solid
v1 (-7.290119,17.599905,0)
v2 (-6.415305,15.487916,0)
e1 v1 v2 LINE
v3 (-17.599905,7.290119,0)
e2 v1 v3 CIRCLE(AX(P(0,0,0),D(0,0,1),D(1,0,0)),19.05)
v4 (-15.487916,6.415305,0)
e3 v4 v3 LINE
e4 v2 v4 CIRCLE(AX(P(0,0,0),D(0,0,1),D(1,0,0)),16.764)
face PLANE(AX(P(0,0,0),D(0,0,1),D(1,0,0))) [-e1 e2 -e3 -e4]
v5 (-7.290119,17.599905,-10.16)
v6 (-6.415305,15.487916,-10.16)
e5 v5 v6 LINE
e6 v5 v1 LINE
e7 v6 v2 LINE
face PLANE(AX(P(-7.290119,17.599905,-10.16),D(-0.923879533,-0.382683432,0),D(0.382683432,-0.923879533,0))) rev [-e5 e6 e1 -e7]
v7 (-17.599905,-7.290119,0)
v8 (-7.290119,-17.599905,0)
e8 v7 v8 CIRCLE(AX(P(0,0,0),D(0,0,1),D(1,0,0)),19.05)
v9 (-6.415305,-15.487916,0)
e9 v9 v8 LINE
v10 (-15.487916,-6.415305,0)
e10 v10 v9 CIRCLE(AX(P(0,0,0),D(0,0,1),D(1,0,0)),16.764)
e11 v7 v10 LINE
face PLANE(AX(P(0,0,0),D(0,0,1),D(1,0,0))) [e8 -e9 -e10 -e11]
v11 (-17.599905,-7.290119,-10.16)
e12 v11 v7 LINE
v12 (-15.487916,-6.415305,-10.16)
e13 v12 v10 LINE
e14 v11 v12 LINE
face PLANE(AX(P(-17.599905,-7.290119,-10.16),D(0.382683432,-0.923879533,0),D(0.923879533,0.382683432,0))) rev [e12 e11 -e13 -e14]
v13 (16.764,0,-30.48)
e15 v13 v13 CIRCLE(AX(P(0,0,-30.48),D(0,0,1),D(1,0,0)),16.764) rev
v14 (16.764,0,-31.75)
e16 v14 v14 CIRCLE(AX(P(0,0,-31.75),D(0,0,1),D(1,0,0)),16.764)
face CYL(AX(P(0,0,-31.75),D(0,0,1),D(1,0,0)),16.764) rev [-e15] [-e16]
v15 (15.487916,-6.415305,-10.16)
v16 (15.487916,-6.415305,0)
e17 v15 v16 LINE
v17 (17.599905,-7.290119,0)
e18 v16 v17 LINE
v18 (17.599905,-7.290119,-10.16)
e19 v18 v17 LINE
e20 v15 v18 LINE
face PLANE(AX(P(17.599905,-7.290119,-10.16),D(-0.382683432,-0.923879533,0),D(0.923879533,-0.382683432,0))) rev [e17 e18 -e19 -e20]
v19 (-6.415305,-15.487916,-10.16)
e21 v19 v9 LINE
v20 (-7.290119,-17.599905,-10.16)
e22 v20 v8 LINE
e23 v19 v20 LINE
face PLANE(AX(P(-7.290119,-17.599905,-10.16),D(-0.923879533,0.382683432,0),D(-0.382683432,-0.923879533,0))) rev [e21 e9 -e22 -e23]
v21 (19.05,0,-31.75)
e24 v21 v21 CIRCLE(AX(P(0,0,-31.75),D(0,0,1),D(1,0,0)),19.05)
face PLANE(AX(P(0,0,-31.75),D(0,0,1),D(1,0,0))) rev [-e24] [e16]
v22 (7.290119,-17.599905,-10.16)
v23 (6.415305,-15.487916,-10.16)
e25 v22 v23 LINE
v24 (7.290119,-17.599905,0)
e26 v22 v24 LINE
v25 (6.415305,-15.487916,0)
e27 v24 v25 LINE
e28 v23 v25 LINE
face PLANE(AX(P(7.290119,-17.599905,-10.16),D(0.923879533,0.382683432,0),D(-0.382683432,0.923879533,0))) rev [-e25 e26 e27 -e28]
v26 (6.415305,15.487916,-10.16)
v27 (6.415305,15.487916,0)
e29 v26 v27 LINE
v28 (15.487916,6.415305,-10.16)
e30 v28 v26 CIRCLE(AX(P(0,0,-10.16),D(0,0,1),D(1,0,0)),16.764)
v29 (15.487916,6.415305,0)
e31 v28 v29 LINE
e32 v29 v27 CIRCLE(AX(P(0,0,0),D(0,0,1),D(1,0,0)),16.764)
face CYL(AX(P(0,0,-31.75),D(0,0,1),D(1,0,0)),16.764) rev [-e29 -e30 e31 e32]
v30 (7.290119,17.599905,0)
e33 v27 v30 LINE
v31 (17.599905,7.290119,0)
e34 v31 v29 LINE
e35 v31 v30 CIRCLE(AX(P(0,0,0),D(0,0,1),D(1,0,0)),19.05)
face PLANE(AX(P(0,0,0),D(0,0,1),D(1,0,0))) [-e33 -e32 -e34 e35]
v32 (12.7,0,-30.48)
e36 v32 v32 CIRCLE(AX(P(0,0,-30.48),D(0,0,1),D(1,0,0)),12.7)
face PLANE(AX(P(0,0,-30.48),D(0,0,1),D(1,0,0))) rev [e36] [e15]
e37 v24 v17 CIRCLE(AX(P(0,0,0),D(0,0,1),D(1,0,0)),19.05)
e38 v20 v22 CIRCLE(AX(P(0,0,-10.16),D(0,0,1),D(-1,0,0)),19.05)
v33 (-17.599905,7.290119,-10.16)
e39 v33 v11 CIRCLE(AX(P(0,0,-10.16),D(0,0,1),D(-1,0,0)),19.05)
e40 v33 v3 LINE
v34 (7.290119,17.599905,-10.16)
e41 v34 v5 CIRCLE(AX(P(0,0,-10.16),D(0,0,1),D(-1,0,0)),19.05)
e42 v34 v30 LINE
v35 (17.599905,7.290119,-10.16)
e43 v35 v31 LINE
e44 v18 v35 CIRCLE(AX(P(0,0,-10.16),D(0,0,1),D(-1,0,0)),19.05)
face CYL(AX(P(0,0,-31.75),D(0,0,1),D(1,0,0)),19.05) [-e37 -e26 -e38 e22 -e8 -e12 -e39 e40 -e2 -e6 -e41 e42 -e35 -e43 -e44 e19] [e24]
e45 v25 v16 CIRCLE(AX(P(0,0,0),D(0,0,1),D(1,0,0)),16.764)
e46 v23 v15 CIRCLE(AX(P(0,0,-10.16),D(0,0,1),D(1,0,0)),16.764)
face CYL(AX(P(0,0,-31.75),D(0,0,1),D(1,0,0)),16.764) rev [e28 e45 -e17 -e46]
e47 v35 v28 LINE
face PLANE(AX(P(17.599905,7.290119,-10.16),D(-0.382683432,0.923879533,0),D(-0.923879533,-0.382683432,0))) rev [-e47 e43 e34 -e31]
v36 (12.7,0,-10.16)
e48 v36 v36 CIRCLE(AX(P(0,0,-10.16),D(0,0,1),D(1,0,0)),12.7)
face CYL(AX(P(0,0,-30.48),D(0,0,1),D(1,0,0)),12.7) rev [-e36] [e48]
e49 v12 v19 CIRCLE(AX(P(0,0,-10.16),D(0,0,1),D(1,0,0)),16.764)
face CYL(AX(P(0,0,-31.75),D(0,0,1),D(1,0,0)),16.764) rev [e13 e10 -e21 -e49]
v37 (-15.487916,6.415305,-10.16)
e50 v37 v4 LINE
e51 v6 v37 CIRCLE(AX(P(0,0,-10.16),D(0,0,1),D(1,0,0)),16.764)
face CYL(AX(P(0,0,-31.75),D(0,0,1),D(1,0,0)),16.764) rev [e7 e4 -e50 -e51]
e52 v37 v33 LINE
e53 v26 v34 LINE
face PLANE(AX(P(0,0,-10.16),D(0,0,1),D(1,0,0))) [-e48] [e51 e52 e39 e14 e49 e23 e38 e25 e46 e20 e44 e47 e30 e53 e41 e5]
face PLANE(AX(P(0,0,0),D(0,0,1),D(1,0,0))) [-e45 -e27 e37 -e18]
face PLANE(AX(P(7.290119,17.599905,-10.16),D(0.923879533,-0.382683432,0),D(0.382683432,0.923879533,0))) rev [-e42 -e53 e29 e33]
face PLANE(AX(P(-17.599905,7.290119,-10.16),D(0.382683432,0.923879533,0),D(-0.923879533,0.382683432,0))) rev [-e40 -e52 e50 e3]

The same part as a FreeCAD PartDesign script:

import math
import FreeCAD as App
import Part
import Sketcher

V = App.Vector
Q = App.Units.Quantity

doc = App.newDocument("Part")
params = doc.addObject("Spreadsheet::Sheet", "Params")
for row, (alias, value) in enumerate([
    ("sketch1_diameter", "1.5 in"),
    ("sketch1_diameter2", "1.32 in"),
    ("pad1_length", "1.25 in"),
    ("sketch2_diameter", "1 in"),
    ("sketch2_diameter2", "1.32 in"),
    ("pad2_length", "0.8 in"),
    ("sketch3_radius", "0.66 in"),
    ("sketch3_radius2", "0.75 in"),
    ("pocket1_length", "0.4 in"),
], start=1):
    params.set(f"A{row}", alias)
    params.set(f"B{row}", "=" + value)
    params.setAlias(f"B{row}", alias)

body = doc.addObject("PartDesign::Body", "Body")

# Sketch on XY plane
sketch1 = doc.addObject("Sketcher::SketchObject", "Sketch")
body.addObject(sketch1)
sketch1.AttachmentSupport = (doc.XY_Plane, [""])
sketch1.MapMode = "FlatFace"
sketch1.addGeometry([
    Part.Circle(V(0, 0, 0), V(0, 0, 1), 19.05),
    Part.Circle(V(0, 0, 0), V(0, 0, 1), 16.764),
], False)
sketch1.addConstraint([
    Sketcher.Constraint("Coincident", 0, 3, -1, 1),
    Sketcher.Constraint("Coincident", 1, 3, -1, 1),
    Sketcher.Constraint("Diameter", 0, Q("1.5 in")),
    Sketcher.Constraint("Diameter", 1, Q("1.32 in")),
])
sketch1.setExpression("Constraints[2]", "Params.sketch1_diameter")
sketch1.setExpression("Constraints[3]", "Params.sketch1_diameter2")
pad1 = doc.addObject("PartDesign::Pad", "Pad")
body.addObject(pad1)
pad1.Profile = sketch1
pad1.setExpression("Length", "Params.pad1_length")
pad1.Reversed = True

# Sketch on XY plane
sketch2 = doc.addObject("Sketcher::SketchObject", "Sketch001")
body.addObject(sketch2)
sketch2.AttachmentSupport = (doc.XY_Plane, [""])
sketch2.MapMode = "FlatFace"
sketch2.AttachmentOffset = App.Placement(V(0, 0, -0.4 * 25.4), App.Rotation())
sketch2.addGeometry([
    Part.Circle(V(0, 0, 0), V(0, 0, 1), 16.764),
    Part.Circle(V(0, 0, 0), V(0, 0, 1), 12.7),
], False)
sketch2.addConstraint([
    Sketcher.Constraint("Coincident", 0, 3, -1, 1),
    Sketcher.Constraint("Coincident", 1, 3, -1, 1),
    Sketcher.Constraint("Diameter", 1, Q("1 in")),
    Sketcher.Constraint("Diameter", 0, Q("1.32 in")),
])
sketch2.setExpression("Constraints[2]", "Params.sketch2_diameter")
sketch2.setExpression("Constraints[3]", "Params.sketch2_diameter2")
pad2 = doc.addObject("PartDesign::Pad", "Pad001")
body.addObject(pad2)
pad2.Profile = sketch2
pad2.setExpression("Length", "Params.pad2_length")
pad2.Reversed = True

# Sketch on XY plane
sketch3 = doc.addObject("Sketcher::SketchObject", "Sketch002")
body.addObject(sketch3)
sketch3.AttachmentSupport = (doc.XY_Plane, [""])
sketch3.MapMode = "FlatFace"
sketch3.addGeometry([
    Part.LineSegment(V(-7.290119, 17.599905, 0), V(-6.415305, 15.487916, 0)),  # 0
    Part.ArcOfCircle(Part.Circle(V(0, 0, 0), V(0, 0, 1), 16.764), math.radians(67.5), math.radians(112.5)),  # 1
    Part.LineSegment(V(6.415305, 15.487916, 0), V(7.290119, 17.599905, 0)),  # 2
    Part.ArcOfCircle(Part.Circle(V(0, 0, 0), V(0, 0, 1), 19.05), math.radians(67.5), math.radians(112.5)),  # 3
    Part.LineSegment(V(15.487916, -6.415305, 0), V(17.599905, -7.290119, 0)),  # 4
    Part.ArcOfCircle(Part.Circle(V(0, 0, 0), V(0, 0, 1), 19.05), math.radians(-22.5), math.radians(22.5)),  # 5
    Part.LineSegment(V(17.599905, 7.290119, 0), V(15.487916, 6.415305, 0)),  # 6
    Part.ArcOfCircle(Part.Circle(V(0, 0, 0), V(0, 0, 1), 16.764), math.radians(-22.5), math.radians(22.5)),  # 7
    Part.LineSegment(V(-6.415305, -15.487916, 0), V(-7.290119, -17.599905, 0)),  # 8
    Part.ArcOfCircle(Part.Circle(V(0, 0, 0), V(0, 0, 1), 19.05), math.radians(-112.5), math.radians(-67.5)),  # 9
    Part.LineSegment(V(7.290119, -17.599905, 0), V(6.415305, -15.487916, 0)),  # 10
    Part.ArcOfCircle(Part.Circle(V(0, 0, 0), V(0, 0, 1), 16.764), math.radians(-112.5), math.radians(-67.5)),  # 11
    Part.LineSegment(V(-15.487916, 6.415305, 0), V(-17.599905, 7.290119, 0)),  # 12
    Part.ArcOfCircle(Part.Circle(V(0, 0, 0), V(0, 0, 1), 19.05), math.radians(157.5), math.radians(202.5)),  # 13
    Part.LineSegment(V(-17.599905, -7.290119, 0), V(-15.487916, -6.415305, 0)),  # 14
    Part.ArcOfCircle(Part.Circle(V(0, 0, 0), V(0, 0, 1), 16.764), math.radians(157.5), math.radians(202.5)),  # 15
], False)
sketch3.addConstraint([
    Sketcher.Constraint("Coincident", 0, 2, 1, 2),
    Sketcher.Constraint("Coincident", 1, 1, 2, 1),
    Sketcher.Constraint("Coincident", 2, 2, 3, 1),
    Sketcher.Constraint("Coincident", 3, 2, 0, 1),
    Sketcher.Constraint("Coincident", 4, 2, 5, 1),
    Sketcher.Constraint("Coincident", 5, 2, 6, 1),
    Sketcher.Constraint("Coincident", 6, 2, 7, 2),
    Sketcher.Constraint("Coincident", 7, 1, 4, 1),
    Sketcher.Constraint("Coincident", 8, 2, 9, 1),
    Sketcher.Constraint("Coincident", 9, 2, 10, 1),
    Sketcher.Constraint("Coincident", 10, 2, 11, 2),
    Sketcher.Constraint("Coincident", 11, 1, 8, 1),
    Sketcher.Constraint("Coincident", 12, 2, 13, 1),
    Sketcher.Constraint("Coincident", 13, 2, 14, 1),
    Sketcher.Constraint("Coincident", 14, 2, 15, 2),
    Sketcher.Constraint("Coincident", 15, 1, 12, 1),
    Sketcher.Constraint("Coincident", 1, 3, -1, 1),
    Sketcher.Constraint("Coincident", 3, 3, -1, 1),
    Sketcher.Constraint("Coincident", 5, 3, -1, 1),
    Sketcher.Constraint("Coincident", 7, 3, -1, 1),
    Sketcher.Constraint("Coincident", 9, 3, -1, 1),
    Sketcher.Constraint("Coincident", 11, 3, -1, 1),
    Sketcher.Constraint("Coincident", 13, 3, -1, 1),
    Sketcher.Constraint("Coincident", 15, 3, -1, 1),
    Sketcher.Constraint("Equal", 3, 5),
    Sketcher.Constraint("Equal", 1, 7),
    Sketcher.Constraint("Equal", 5, 9),
    Sketcher.Constraint("Equal", 7, 11),
    Sketcher.Constraint("Equal", 9, 13),
    Sketcher.Constraint("Equal", 11, 15),
    Sketcher.Constraint("Perpendicular", 2, 4),
    Sketcher.Constraint("Perpendicular", 0, 6),
    Sketcher.Constraint("Perpendicular", 4, 8),
    Sketcher.Constraint("Perpendicular", 6, 10),
    Sketcher.Constraint("Perpendicular", 8, 12),
    Sketcher.Constraint("Perpendicular", 10, 14),
    Sketcher.Constraint("Horizontal", 0, 2, 1, 1),
    Sketcher.Constraint("Horizontal", 2, 2, 3, 2),
    Sketcher.Constraint("Horizontal", 8, 2, 9, 2),
    Sketcher.Constraint("Horizontal", 5, 2, 12, 2),
    Sketcher.Constraint("Horizontal", 4, 2, 13, 2),
    Sketcher.Constraint("Vertical", 4, 2, 5, 2),
    Sketcher.Constraint("Vertical", 3, 2, 8, 2),
    Sketcher.Constraint("Radius", 1, Q("0.66 in")),
    Sketcher.Constraint("Radius", 3, Q("0.75 in")),
    Sketcher.Constraint("Angle", 0, Q("-67.5 deg")),
    Sketcher.Constraint("DistanceX", 1, 1, 5, 2, Q("11.1846 mm")),
    Sketcher.Constraint("DistanceY", 6, 2, 2, 2, Q("11.1846 mm")),
])
sketch3.setExpression("Constraints[43]", "Params.sketch3_radius")
sketch3.setExpression("Constraints[44]", "Params.sketch3_radius2")
pocket1 = doc.addObject("PartDesign::Pocket", "Pocket")
body.addObject(pocket1)
pocket1.Profile = sketch3
pocket1.setExpression("Length", "Params.pocket1_length")

doc.recompute()
